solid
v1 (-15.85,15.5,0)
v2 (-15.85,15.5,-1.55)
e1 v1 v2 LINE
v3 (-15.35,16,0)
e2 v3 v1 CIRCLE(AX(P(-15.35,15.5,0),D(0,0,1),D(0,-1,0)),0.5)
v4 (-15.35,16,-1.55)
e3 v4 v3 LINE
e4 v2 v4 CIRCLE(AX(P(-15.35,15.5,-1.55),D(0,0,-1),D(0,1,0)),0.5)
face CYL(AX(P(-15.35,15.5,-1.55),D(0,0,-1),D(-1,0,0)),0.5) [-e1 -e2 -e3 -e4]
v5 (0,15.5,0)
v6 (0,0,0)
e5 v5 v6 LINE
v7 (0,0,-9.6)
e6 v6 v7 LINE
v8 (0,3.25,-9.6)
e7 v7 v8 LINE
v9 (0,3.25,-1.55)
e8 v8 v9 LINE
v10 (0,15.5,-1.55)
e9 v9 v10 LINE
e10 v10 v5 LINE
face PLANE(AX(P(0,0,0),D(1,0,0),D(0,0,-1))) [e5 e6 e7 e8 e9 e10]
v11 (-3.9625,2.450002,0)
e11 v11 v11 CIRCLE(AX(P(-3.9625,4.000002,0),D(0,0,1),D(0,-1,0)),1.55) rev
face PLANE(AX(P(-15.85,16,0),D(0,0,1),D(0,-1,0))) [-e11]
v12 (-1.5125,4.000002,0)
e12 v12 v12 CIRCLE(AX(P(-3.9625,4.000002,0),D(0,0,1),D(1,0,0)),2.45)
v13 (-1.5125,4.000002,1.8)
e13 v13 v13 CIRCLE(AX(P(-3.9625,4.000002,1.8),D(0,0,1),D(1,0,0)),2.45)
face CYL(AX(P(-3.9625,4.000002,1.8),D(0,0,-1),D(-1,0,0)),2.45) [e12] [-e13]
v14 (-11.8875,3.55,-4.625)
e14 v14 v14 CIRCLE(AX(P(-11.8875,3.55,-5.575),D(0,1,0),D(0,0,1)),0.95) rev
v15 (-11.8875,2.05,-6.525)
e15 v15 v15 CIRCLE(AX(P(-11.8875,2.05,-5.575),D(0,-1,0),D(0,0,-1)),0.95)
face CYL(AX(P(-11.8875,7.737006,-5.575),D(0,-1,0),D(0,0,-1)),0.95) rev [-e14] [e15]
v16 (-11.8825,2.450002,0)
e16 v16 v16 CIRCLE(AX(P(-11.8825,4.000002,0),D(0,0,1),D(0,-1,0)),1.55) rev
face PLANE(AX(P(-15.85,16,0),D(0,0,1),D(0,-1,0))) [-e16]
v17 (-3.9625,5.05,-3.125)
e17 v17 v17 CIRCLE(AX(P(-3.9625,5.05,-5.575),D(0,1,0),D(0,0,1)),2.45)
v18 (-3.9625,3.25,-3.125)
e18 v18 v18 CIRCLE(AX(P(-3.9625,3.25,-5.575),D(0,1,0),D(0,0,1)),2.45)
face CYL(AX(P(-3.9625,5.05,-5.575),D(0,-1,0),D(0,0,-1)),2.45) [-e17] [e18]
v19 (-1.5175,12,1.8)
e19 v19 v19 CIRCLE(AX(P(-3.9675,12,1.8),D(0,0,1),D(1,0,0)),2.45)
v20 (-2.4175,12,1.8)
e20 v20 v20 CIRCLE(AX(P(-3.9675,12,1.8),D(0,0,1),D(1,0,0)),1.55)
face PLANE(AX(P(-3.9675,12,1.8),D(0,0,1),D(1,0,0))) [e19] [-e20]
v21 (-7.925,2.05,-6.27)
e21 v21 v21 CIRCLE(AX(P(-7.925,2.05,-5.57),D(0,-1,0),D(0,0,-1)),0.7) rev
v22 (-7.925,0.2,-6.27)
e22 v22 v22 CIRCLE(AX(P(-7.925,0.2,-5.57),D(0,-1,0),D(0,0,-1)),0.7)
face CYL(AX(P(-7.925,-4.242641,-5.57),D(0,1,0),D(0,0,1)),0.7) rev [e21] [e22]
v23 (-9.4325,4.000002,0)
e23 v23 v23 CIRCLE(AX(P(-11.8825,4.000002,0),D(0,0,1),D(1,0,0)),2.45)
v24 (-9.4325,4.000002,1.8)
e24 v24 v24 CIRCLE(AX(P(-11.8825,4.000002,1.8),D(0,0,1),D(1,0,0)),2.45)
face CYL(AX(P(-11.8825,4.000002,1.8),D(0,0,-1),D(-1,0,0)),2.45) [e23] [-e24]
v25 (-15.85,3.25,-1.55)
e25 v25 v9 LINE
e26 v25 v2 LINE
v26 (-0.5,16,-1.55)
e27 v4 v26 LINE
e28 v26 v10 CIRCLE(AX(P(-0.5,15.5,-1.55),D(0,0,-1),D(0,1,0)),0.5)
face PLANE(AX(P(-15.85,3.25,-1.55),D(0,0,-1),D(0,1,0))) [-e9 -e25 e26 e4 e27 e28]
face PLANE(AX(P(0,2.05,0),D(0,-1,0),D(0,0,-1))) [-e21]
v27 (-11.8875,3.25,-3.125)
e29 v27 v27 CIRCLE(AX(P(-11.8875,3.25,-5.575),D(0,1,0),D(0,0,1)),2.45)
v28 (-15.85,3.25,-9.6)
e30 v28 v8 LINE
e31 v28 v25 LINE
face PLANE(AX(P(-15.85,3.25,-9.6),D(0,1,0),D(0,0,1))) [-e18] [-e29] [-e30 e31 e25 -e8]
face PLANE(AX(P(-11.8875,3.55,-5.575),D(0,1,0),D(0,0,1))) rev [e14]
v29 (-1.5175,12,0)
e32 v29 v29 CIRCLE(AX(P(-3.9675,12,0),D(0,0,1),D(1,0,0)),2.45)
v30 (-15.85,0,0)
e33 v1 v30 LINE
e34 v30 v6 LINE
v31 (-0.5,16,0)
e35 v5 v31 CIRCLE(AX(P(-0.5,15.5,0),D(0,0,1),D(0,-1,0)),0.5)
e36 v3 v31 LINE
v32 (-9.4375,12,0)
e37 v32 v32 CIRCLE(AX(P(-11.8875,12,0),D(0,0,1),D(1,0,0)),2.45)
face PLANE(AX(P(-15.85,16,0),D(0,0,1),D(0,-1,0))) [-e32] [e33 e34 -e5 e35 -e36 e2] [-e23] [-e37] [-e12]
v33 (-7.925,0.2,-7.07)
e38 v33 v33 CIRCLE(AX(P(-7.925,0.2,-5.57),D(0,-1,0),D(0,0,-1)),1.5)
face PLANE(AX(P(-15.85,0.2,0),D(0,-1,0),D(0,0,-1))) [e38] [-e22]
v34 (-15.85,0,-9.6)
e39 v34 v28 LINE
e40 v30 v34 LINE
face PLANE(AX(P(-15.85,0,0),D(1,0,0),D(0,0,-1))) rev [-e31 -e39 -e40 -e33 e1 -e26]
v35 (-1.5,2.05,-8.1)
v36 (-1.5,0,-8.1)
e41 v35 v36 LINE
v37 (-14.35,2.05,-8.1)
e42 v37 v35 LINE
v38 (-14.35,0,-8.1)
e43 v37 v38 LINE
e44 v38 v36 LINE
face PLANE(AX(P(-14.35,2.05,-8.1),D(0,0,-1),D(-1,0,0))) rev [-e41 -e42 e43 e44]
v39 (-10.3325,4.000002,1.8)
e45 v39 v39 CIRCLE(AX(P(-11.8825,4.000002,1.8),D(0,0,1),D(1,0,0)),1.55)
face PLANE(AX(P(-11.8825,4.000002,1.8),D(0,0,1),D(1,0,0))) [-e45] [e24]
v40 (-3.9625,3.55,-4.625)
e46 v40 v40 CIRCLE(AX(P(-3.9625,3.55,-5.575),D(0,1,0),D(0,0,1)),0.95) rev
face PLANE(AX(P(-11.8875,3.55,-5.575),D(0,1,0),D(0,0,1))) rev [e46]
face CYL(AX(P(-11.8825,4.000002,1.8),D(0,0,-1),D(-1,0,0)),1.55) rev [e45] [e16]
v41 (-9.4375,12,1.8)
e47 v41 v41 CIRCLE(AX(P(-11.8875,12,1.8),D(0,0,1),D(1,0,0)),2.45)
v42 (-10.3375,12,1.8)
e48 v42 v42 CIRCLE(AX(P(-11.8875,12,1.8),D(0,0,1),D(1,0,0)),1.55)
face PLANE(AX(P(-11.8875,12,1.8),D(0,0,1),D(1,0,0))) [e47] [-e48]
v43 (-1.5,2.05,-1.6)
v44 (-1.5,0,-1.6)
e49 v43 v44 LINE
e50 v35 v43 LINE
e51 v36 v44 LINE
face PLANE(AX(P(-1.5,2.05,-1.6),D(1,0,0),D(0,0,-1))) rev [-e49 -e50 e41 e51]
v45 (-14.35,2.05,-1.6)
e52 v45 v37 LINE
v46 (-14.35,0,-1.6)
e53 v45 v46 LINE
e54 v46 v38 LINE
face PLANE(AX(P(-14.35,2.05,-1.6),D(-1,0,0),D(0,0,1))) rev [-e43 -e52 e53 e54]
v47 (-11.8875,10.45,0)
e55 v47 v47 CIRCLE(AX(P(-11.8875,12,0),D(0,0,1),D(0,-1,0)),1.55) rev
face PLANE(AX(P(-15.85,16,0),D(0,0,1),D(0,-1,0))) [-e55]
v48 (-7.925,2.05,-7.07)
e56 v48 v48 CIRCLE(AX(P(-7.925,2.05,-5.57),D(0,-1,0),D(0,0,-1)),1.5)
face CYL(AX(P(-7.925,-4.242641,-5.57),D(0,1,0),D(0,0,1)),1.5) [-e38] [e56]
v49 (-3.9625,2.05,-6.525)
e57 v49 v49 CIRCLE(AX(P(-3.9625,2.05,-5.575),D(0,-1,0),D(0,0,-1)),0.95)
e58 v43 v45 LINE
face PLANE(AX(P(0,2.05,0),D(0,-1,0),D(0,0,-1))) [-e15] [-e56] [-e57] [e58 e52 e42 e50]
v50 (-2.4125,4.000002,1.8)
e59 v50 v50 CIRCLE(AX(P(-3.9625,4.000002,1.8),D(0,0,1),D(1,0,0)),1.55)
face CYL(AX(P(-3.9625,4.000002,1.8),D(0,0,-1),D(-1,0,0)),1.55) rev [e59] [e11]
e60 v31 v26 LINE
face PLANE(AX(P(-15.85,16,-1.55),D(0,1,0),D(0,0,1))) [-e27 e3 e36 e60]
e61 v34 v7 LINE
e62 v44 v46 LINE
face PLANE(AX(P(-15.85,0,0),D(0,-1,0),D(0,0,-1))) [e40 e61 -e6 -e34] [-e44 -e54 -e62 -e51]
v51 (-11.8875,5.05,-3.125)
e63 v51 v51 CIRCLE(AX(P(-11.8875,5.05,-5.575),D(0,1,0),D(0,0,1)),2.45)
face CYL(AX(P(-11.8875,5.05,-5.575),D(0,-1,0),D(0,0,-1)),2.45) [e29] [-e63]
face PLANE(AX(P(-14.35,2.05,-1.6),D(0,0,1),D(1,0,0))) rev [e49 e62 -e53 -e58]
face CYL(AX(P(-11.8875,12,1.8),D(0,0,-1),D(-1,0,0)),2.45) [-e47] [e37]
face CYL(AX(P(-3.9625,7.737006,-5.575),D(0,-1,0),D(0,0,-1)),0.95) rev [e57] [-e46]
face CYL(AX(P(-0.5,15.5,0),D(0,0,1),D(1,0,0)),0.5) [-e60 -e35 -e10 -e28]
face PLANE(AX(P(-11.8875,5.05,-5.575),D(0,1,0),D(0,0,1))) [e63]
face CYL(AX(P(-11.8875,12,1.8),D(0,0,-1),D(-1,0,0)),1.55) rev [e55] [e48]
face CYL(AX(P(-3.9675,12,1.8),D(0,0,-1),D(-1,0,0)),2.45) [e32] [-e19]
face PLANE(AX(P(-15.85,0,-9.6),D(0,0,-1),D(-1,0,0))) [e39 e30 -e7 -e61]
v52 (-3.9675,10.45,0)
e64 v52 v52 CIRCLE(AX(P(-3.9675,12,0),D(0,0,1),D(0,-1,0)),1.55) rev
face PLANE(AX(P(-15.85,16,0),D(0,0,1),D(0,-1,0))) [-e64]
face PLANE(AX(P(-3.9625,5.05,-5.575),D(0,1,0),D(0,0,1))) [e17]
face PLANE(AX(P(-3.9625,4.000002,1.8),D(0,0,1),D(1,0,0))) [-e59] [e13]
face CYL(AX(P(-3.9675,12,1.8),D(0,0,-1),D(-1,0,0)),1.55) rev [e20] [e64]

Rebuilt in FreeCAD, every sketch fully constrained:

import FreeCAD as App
import Part
import Sketcher


def edges_at(feature, points):
    """Names of the edges that pass closest to the given points."""
    edges = feature.Shape.Edges
    near = lambda p: min(range(len(edges)), key=lambda i: edges[i].distToShape(Part.Vertex(*p))[0])
    return sorted({f"Edge{near(p) + 1}" for p in points})


def add_polygon(sketch, points):
    """Adds a closed chain of lines whose ends are joined by coincident constraints."""
    first, n = sketch.GeometryCount, len(points)
    for a, b in zip(points, points[1:] + points[:1]):
        sketch.addGeometry(Part.LineSegment(App.Vector(*a, 0), App.Vector(*b, 0)), False)
    for i in range(n):
        sketch.addConstraint(Sketcher.Constraint("Coincident", first + i, 2, first + (i + 1) % n, 1))

doc = App.newDocument("Part")
params = doc.addObject("Spreadsheet::Sheet", "Params")
for row, (alias, value) in enumerate([
    ("sketch1_width", "16 mm"),
    ("sketch1_height", "9.6 mm"),
    ("sketch1_width2", "3.25 mm"),
    ("sketch1_height2", "8.05 mm"),
    ("pad1_length", "15.85 mm"),
    ("sketch2_diameter", "4.9 mm"),
    ("pad2_length", "1.8 mm"),
    ("sketch3_height", "6.5 mm"),
    ("sketch3_width", "12.85 mm"),
    ("pocket1_length", "2.05 mm"),
    ("sketch4_diameter", "1.9 mm"),
    ("pocket2_length", "1.5 mm"),
    ("sketch5_diameter", "3 mm"),
    ("sketch5_diameter2", "1.4 mm"),
    ("pad3_length", "1.85 mm"),
    ("sketch6_diameter", "4.9 mm"),
    ("sketch6_diameter2", "3.1 mm"),
    ("pad4_length", "1.8 mm"),
    ("fillet_radius", "0.5 mm"),
], start=1):
    params.set(f"A{row}", alias)
    params.set(f"B{row}", "=" + value)
    params.setAlias(f"B{row}", alias)

body = doc.addObject("PartDesign::Body", "Body")

# Sketch on YZ plane
sketch1 = doc.addObject("Sketcher::SketchObject", "Sketch")
body.addObject(sketch1)
sketch1.AttachmentSupport = (doc.YZ_Plane, [""])
sketch1.MapMode = "FlatFace"
add_polygon(sketch1, [(16, 0), (0, 0), (0, -9.6), (3.2, -9.6), (3.2, -1.6), (16, -1.6)])  # lines 0-5
sketch1.addConstraint([
    Sketcher.Constraint("Horizontal", 0),
    Sketcher.Constraint("Vertical", 1),
    Sketcher.Constraint("Horizontal", 2),
    Sketcher.Constraint("Vertical", 3),
    Sketcher.Constraint("Horizontal", 4),
    Sketcher.Constraint("Vertical", 5),
    Sketcher.Constraint("Coincident", 0, 2, -1, 1),
    Sketcher.Constraint("DistanceX", 0, 2, 0, 1, 16.0),
    Sketcher.Constraint("DistanceY", 1, 2, 1, 1, 9.6),
    Sketcher.Constraint("DistanceX", 2, 1, 2, 2, 3.25),
    Sketcher.Constraint("DistanceY", 3, 1, 3, 2, 8.05),
])
sketch1.setExpression("Constraints[13]", "Params.sketch1_width")
sketch1.setExpression("Constraints[14]", "Params.sketch1_height")
sketch1.setExpression("Constraints[15]", "Params.sketch1_width2")
sketch1.setExpression("Constraints[16]", "Params.sketch1_height2")
pad1 = doc.addObject("PartDesign::Pad", "Pad")
body.addObject(pad1)
pad1.Profile = sketch1
pad1.setExpression("Length", "Params.pad1_length")
pad1.Reversed = True

# Sketch on XZ plane
sketch2 = doc.addObject("Sketcher::SketchObject", "Sketch001")
body.addObject(sketch2)
sketch2.AttachmentSupport = (doc.XZ_Plane, [""])
sketch2.MapMode = "FlatFace"
sketch2.AttachmentOffset = App.Placement(App.Vector(0, 0, -3.25), App.Rotation())
sketch2.addGeometry([
    Part.Circle(App.Vector(-11.9, -5.6, 0), App.Vector(0, 0, 1), 2.5),
    Part.Circle(App.Vector(-4, -5.6, 0), App.Vector(0, 0, 1), 2.5),
], False)
sketch2.addConstraint([
    Sketcher.Constraint("Equal", 0, 1),
    Sketcher.Constraint("Horizontal", 0, 3, 1, 3),
    Sketcher.Constraint("Diameter", 0, 4.9),
    Sketcher.Constraint("DistanceY", 0, 3, -1, 1, 5.575),
    Sketcher.Constraint("DistanceX", 0, 3, 1, 3, 7.925),
    Sketcher.Constraint("DistanceX", 0, 3, -1, 1, 11.8875),
])
sketch2.setExpression("Constraints[2]", "Params.sketch2_diameter")
pad2 = doc.addObject("PartDesign::Pad", "Pad001")
body.addObject(pad2)
pad2.Profile = sketch2
pad2.setExpression("Length", "Params.pad2_length")
pad2.Reversed = True

# Sketch on XZ plane
sketch3 = doc.addObject("Sketcher::SketchObject", "Sketch002")
body.addObject(sketch3)
sketch3.AttachmentSupport = (doc.XZ_Plane, [""])
sketch3.MapMode = "FlatFace"
add_polygon(sketch3, [(-14, -2), (-14, -8), (-2, -8), (-2, -2)])  # lines 0-3
sketch3.addConstraint([
    Sketcher.Constraint("Vertical", 0),
    Sketcher.Constraint("Horizontal", 1),
    Sketcher.Constraint("Vertical", 2),
    Sketcher.Constraint("Horizontal", 3),
    Sketcher.Constraint("DistanceY", 0, 2, 0, 1, 6.5),
    Sketcher.Constraint("DistanceX", 1, 1, 1, 2, 12.85),
    Sketcher.Constraint("DistanceY", 0, 2, -1, 1, 8.1),
    Sketcher.Constraint("DistanceX", 1, 2, -1, 1, 1.5),
])
sketch3.setExpression("Constraints[8]", "Params.sketch3_height")
sketch3.setExpression("Constraints[9]", "Params.sketch3_width")
pocket1 = doc.addObject("PartDesign::Pocket", "Pocket")
body.addObject(pocket1)
pocket1.Profile = sketch3
pocket1.setExpression("Length", "Params.pocket1_length")

# Sketch on XZ plane
sketch4 = doc.addObject("Sketcher::SketchObject", "Sketch003")
body.addObject(sketch4)
sketch4.AttachmentSupport = (doc.XZ_Plane, [""])
sketch4.MapMode = "FlatFace"
sketch4.AttachmentOffset = App.Placement(App.Vector(0, 0, -2.05), App.Rotation())
sketch4.addGeometry([
    Part.Circle(App.Vector(-11.9, -5.6, 0), App.Vector(0, 0, 1), 0.9),
    Part.Circle(App.Vector(-4, -5.6, 0), App.Vector(0, 0, 1), 0.9),
], False)
sketch4.addConstraint([
    Sketcher.Constraint("Equal", 0, 1),
    Sketcher.Constraint("Horizontal", 0, 3, 1, 3),
    Sketcher.Constraint("Diameter", 0, 1.9),
    Sketcher.Constraint("DistanceY", 0, 3, -1, 1, 5.575),
    Sketcher.Constraint("DistanceX", 0, 3, 1, 3, 7.925),
    Sketcher.Constraint("DistanceX", 0, 3, -1, 1, 11.8875),
])
sketch4.setExpression("Constraints[2]", "Params.sketch4_diameter")
pocket2 = doc.addObject("PartDesign::Pocket", "Pocket001")
body.addObject(pocket2)
pocket2.Profile = sketch4
pocket2.setExpression("Length", "Params.pocket2_length")

# Sketch on XZ plane
sketch5 = doc.addObject("Sketcher::SketchObject", "Sketch004")
body.addObject(sketch5)
sketch5.AttachmentSupport = (doc.XZ_Plane, [""])
sketch5.MapMode = "FlatFace"
sketch5.AttachmentOffset = App.Placement(App.Vector(0, 0, -2.05), App.Rotation())
sketch5.addGeometry([
    Part.Circle(App.Vector(-7.9, -5.6, 0), App.Vector(0, 0, 1), 1.5),
    Part.Circle(App.Vector(-7.9, -5.6, 0), App.Vector(0, 0, 1), 0.7),
], False)
sketch5.addConstraint([
    Sketcher.Constraint("Coincident", 1, 3, 0, 3),
    Sketcher.Constraint("Diameter", 0, 3.0),
    Sketcher.Constraint("Diameter", 1, 1.4),
    Sketcher.Constraint("DistanceY", 0, 3, -1, 1, 5.57),
    Sketcher.Constraint("DistanceX", 0, 3, -1, 1, 7.925),
])
sketch5.setExpression("Constraints[1]", "Params.sketch5_diameter")
sketch5.setExpression("Constraints[2]", "Params.sketch5_diameter2")
pad3 = doc.addObject("PartDesign::Pad", "Pad002")
body.addObject(pad3)
pad3.Profile = sketch5
pad3.setExpression("Length", "Params.pad3_length")

# Sketch on XY plane
sketch6 = doc.addObject("Sketcher::SketchObject", "Sketch005")
body.addObject(sketch6)
sketch6.AttachmentSupport = (doc.XY_Plane, [""])
sketch6.MapMode = "FlatFace"
sketch6.addGeometry([
    Part.Circle(App.Vector(-11.9, 12, 0), App.Vector(0, 0, 1), 2.5),  # 0
    Part.Circle(App.Vector(-11.9, 12, 0), App.Vector(0, 0, 1), 1.6),  # 1
    Part.Circle(App.Vector(-4, 12, 0), App.Vector(0, 0, 1), 2.5),  # 2
    Part.Circle(App.Vector(-4, 12, 0), App.Vector(0, 0, 1), 1.6),  # 3
    Part.Circle(App.Vector(-4, 4, 0), App.Vector(0, 0, 1), 2.5),  # 4
    Part.Circle(App.Vector(-4, 4, 0), App.Vector(0, 0, 1), 1.6),  # 5
    Part.Circle(App.Vector(-11.9, 4, 0), App.Vector(0, 0, 1), 2.5),  # 6
    Part.Circle(App.Vector(-11.9, 4, 0), App.Vector(0, 0, 1), 1.6),  # 7
], False)
sketch6.addConstraint([
    Sketcher.Constraint("Coincident", 1, 3, 0, 3),
    Sketcher.Constraint("Coincident", 3, 3, 2, 3),
    Sketcher.Constraint("Coincident", 5, 3, 4, 3),
    Sketcher.Constraint("Coincident", 7, 3, 6, 3),
    Sketcher.Constraint("Equal", 0, 2),
    Sketcher.Constraint("Equal", 1, 3),
    Sketcher.Constraint("Equal", 2, 4),
    Sketcher.Constraint("Equal", 3, 5),
    Sketcher.Constraint("Equal", 4, 6),
    Sketcher.Constraint("Equal", 5, 7),
    Sketcher.Constraint("Horizontal", 1, 3, 2, 3),
    Sketcher.Constraint("Horizontal", 5, 3, 6, 3),
    Sketcher.Constraint("Diameter", 0, 4.9),
    Sketcher.Constraint("Diameter", 1, 3.1),
    Sketcher.Constraint("DistanceY", -1, 1, 0, 3, 12.0),
    Sketcher.Constraint("DistanceY", -1, 1, 4, 3, 4.000002),
    Sketcher.Constraint("DistanceX", 0, 3, 2, 3, 7.92),
    Sketcher.Constraint("DistanceX", 6, 3, 4, 3, 7.92),
    Sketcher.Constraint("DistanceX", 2, 3, 4, 3, 0.005),
    Sketcher.Constraint("DistanceX", 0, 3, -1, 1, 11.8875),
])
sketch6.setExpression("Constraints[12]", "Params.sketch6_diameter")
sketch6.setExpression("Constraints[13]", "Params.sketch6_diameter2")
pad4 = doc.addObject("PartDesign::Pad", "Pad003")
body.addObject(pad4)
pad4.Profile = sketch6
pad4.setExpression("Length", "Params.pad4_length")
doc.recompute()

fillet = doc.addObject("PartDesign::Fillet", "Fillet")
body.addObject(fillet)
fillet.Base = (pad4, edges_at(pad4, [(-15.85, 16, -0.775), (0, 16, -0.775)]))
fillet.setExpression("Radius", "Params.fillet_radius")

doc.recompute()
